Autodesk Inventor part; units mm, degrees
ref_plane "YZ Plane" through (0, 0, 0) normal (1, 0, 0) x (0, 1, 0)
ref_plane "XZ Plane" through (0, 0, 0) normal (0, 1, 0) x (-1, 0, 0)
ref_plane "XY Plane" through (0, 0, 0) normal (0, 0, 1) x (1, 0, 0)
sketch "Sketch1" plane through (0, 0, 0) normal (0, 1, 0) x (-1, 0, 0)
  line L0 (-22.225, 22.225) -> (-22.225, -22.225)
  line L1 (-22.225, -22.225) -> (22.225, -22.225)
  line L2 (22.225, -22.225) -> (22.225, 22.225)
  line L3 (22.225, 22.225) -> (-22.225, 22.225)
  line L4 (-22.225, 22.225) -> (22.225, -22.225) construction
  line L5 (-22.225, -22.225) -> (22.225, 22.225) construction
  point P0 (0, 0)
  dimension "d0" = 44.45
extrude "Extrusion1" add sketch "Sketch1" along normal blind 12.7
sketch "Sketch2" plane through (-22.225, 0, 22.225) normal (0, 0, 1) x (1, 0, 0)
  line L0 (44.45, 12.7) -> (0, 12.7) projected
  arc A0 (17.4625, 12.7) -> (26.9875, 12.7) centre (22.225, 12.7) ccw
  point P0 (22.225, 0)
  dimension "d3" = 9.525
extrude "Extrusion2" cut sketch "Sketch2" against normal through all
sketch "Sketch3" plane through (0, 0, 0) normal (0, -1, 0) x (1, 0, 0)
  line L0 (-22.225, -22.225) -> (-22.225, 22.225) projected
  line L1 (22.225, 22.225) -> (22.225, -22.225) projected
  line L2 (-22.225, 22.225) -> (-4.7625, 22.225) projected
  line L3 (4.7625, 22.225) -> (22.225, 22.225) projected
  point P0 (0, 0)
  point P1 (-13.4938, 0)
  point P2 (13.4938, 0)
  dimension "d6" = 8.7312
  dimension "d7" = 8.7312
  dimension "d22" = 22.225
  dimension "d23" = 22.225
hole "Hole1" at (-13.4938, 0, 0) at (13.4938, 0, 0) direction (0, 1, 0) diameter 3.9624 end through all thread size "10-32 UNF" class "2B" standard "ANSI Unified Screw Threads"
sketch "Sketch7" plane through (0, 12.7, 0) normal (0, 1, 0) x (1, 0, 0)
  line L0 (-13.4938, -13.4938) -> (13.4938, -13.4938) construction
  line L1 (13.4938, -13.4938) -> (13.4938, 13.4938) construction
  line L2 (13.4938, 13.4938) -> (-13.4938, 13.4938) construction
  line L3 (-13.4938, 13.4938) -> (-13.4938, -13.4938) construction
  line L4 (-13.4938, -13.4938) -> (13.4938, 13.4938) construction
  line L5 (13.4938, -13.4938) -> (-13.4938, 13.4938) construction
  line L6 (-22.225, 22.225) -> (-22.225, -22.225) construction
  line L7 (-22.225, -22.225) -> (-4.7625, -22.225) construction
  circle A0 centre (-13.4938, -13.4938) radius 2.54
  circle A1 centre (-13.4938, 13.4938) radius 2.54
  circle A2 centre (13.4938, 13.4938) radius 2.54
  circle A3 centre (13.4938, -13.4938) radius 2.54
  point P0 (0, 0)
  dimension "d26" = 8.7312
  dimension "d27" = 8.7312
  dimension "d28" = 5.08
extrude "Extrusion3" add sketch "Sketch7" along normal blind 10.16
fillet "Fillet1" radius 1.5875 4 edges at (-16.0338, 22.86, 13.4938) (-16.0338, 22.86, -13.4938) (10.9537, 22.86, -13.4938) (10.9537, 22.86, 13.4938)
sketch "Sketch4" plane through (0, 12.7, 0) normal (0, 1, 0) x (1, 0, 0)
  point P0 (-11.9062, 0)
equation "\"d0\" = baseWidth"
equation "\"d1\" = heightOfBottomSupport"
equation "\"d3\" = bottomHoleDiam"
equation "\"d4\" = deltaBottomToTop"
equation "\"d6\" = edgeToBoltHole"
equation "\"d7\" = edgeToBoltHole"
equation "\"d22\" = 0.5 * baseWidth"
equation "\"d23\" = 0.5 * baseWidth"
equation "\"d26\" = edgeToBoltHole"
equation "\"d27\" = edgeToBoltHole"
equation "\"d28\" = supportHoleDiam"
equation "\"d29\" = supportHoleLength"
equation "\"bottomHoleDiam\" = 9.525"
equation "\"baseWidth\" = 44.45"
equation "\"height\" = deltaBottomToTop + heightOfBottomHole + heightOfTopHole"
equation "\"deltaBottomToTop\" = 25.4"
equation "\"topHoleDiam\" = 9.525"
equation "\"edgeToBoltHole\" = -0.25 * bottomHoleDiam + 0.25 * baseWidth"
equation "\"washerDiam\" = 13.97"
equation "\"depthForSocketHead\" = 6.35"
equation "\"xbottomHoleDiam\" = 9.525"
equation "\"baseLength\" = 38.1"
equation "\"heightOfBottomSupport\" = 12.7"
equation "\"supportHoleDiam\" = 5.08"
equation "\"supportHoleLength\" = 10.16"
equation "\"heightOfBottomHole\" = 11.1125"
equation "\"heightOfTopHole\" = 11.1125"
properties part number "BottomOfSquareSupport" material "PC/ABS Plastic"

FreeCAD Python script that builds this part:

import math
import FreeCAD as App
import Part
import Sketcher

V = App.Vector
Q = App.Units.Quantity


def edges_at(feature, points):
    """Names of the edges that pass closest to the given points."""
    edges = feature.Shape.Edges
    near = lambda p: min(range(len(edges)), key=lambda i: edges[i].distToShape(Part.Vertex(*p))[0])
    return sorted({f"Edge{near(p) + 1}" for p in points})

doc = App.newDocument("Part")
body = doc.addObject("PartDesign::Body", "Body")

sketch1 = body.newObject("Sketcher::SketchObject", "Sketch")
sketch1.AttachmentSupport = (doc.getObject("XZ_Plane"), [""])
sketch1.MapMode = "FlatFace"
sketch1.addGeometry([
    Part.LineSegment(V(-22, 22, 0), V(22, 22, 0)),
    Part.LineSegment(V(22, 22, 0), V(22, -22, 0)),
    Part.LineSegment(V(22, -22, 0), V(-22, -22, 0)),
    Part.LineSegment(V(-22, -22, 0), V(-22, 22, 0)),
], False)
sketch1.addConstraint([
    Sketcher.Constraint("Coincident", 0, 2, 1, 1),
    Sketcher.Constraint("Coincident", 1, 2, 2, 1),
    Sketcher.Constraint("Coincident", 2, 2, 3, 1),
    Sketcher.Constraint("Coincident", 3, 2, 0, 1),
    Sketcher.Constraint("Horizontal", 0),
    Sketcher.Constraint("Vertical", 1),
    Sketcher.Constraint("Horizontal", 2),
    Sketcher.Constraint("Vertical", 3),
    Sketcher.Constraint("Symmetric", 0, 2, 2, 2, -1, 1),
    Sketcher.Constraint("Equal", 2, 1),
    Sketcher.Constraint("DistanceX", 0, 1, 0, 2, Q("1.75 in")),
])
pad1 = body.newObject("PartDesign::Pad", "Pad")
pad1.Profile = sketch1
pad1.Length = Q("0.5 in")
pad1.Reversed = True

sketch2 = body.newObject("Sketcher::SketchObject", "Sketch001")
sketch2.AttachmentSupport = (doc.getObject("XY_Plane"), [""])
sketch2.MapMode = "FlatFace"
sketch2.AttachmentOffset = App.Placement(V(0, 0, 0.875 * 25.4), App.Rotation())
sketch2.addGeometry([
    Part.ArcOfCircle(Part.Circle(V(0, 12.7, 0), V(0, 0, 1), 4.8), math.radians(180), math.radians(360)),
    Part.LineSegment(V(4.8, 12.7, 0), V(-4.8, 12.7, 0)),
], False)
sketch2.addConstraint([
    Sketcher.Constraint("Coincident", 0, 1, 1, 2),
    Sketcher.Constraint("Coincident", 1, 1, 0, 2),
    Sketcher.Constraint("Horizontal", 1),
    Sketcher.Constraint("PointOnObject", 0, 3, -2),
    Sketcher.Constraint("Radius", 0, Q("0.1875 in")),
    Sketcher.Constraint("DistanceY", -1, 1, 0, 3, Q("0.5 in")),
    Sketcher.Constraint("DistanceY", -1, 1, 0, 1, Q("0.5 in")),
])
pocket1 = body.newObject("PartDesign::Pocket", "Pocket")
pocket1.Profile = sketch2
pocket1.Type = "ThroughAll"

sketch3 = body.newObject("Sketcher::SketchObject", "Sketch002")
sketch3.AttachmentSupport = (doc.getObject("XZ_Plane"), [""])
sketch3.MapMode = "FlatFace"
sketch3.addGeometry([
    Part.Circle(V(-13.5, 0, 0), V(0, 0, 1), 2),
    Part.Circle(V(13.5, 0, 0), V(0, 0, 1), 2),
], False)
sketch3.addConstraint([
    Sketcher.Constraint("Equal", 0, 1),
    Sketcher.Constraint("Symmetric", 0, 3, 1, 3, -1, 1),
    Sketcher.Constraint("PointOnObject", 0, 3, -1),
    Sketcher.Constraint("Diameter", 0, Q("0.156 in")),
    Sketcher.Constraint("DistanceX", 0, 3, -1, 1, Q("0.531252 in")),
])
doc.recompute()
hole = body.newObject("PartDesign::Hole", "Hole")
hole.Profile = sketch3
hole.ThreadType = "None"
hole.Diameter = Q("0.156 in")
hole.DepthType = "ThroughAll"

sketch4 = body.newObject("Sketcher::SketchObject", "Sketch003")
sketch4.AttachmentSupport = (doc.getObject("XZ_Plane"), [""])
sketch4.MapMode = "FlatFace"
sketch4.AttachmentOffset = App.Placement(V(0, 0, -0.5 * 25.4), App.Rotation())
sketch4.addGeometry([
    Part.Circle(V(-13.5, 13.5, 0), V(0, 0, 1), 2.5),
    Part.Circle(V(-13.5, -13.5, 0), V(0, 0, 1), 2.5),
    Part.Circle(V(13.5, -13.5, 0), V(0, 0, 1), 2.5),
    Part.Circle(V(13.5, 13.5, 0), V(0, 0, 1), 2.5),
], False)
sketch4.addConstraint([
    Sketcher.Constraint("Equal", 0, 1),
    Sketcher.Constraint("Equal", 1, 2),
    Sketcher.Constraint("Equal", 2, 3),
    Sketcher.Constraint("Symmetric", 0, 3, 2, 3, -1, 1),
    Sketcher.Constraint("Symmetric", 1, 3, 3, 3, -1, 1),
    Sketcher.Constraint("Symmetric", 1, 3, 2, 3, -2),
    Sketcher.Constraint("Diameter", 0, Q("0.2 in")),
    Sketcher.Constraint("DistanceX", 0, 3, -1, 1, Q("0.531252 in")),
    Sketcher.Constraint("DistanceY", -1, 1, 0, 3, Q("0.531252 in")),
])
pad2 = body.newObject("PartDesign::Pad", "Pad001")
pad2.Profile = sketch4
pad2.Length = Q("0.4 in")
pad2.Reversed = True
doc.recompute()

fillet = body.newObject("PartDesign::Fillet", "Fillet")
fillet.Base = (pad2, edges_at(pad2, [
    (-16.034, 22.86, 13.494),
    (-16.034, 22.86, -13.494),
    (10.954, 22.86, -13.494),
    (10.954, 22.86, 13.494),
]))
fillet.Radius = Q("0.0625 in")

doc.recompute()
